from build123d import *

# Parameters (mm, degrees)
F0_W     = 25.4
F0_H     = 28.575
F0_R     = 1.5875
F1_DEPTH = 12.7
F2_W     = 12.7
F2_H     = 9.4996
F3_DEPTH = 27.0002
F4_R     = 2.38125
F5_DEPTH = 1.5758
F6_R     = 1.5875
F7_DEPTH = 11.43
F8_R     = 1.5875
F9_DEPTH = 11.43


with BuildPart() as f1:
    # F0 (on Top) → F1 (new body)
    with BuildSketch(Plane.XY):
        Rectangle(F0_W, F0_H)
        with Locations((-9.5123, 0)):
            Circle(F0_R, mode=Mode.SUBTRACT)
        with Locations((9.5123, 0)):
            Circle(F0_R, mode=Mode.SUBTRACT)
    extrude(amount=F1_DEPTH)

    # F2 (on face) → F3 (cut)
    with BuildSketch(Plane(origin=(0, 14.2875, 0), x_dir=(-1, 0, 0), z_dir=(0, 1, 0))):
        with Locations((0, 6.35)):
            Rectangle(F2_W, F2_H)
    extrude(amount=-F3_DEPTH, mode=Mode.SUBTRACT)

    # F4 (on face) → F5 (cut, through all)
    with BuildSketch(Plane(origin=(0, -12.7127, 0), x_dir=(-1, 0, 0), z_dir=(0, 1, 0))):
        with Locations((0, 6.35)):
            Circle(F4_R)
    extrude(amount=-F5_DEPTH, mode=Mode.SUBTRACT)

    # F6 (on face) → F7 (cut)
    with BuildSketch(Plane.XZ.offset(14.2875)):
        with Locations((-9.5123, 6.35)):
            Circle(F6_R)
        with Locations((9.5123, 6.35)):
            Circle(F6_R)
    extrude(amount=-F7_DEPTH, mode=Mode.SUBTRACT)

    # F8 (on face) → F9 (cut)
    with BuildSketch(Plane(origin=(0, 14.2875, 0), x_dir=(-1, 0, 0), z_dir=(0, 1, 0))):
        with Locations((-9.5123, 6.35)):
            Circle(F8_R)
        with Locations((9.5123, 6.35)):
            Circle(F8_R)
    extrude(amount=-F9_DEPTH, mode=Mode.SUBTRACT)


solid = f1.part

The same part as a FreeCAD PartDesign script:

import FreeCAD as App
import Part
import Sketcher

V = App.Vector
Q = App.Units.Quantity


def add_polygon(sketch, points):
    """Adds a closed chain of lines whose ends are joined by coincident constraints."""
    first, n = sketch.GeometryCount, len(points)
    for a, b in zip(points, points[1:] + points[:1]):
        sketch.addGeometry(Part.LineSegment(App.Vector(*a, 0), App.Vector(*b, 0)), False)
    for i in range(n):
        sketch.addConstraint(Sketcher.Constraint("Coincident", first + i, 2, first + (i + 1) % n, 1))

doc = App.newDocument("Part")
body = doc.addObject("PartDesign::Body", "Body")

sketch1 = body.newObject("Sketcher::SketchObject", "Sketch")
sketch1.AttachmentSupport = (doc.getObject("XY_Plane"), [""])
sketch1.MapMode = "FlatFace"
add_polygon(sketch1, [(-12.7, 14.3), (-12.7, -14.3), (12.7, -14.3), (12.7, 14.3)])
sketch1.addGeometry(Part.Circle(V(-9.5, 0, 0), V(0, 0, 1), 1.6), False)
sketch1.addGeometry(Part.Circle(V(9.5, 0, 0), V(0, 0, 1), 1.6), False)
sketch1.addConstraint([
    Sketcher.Constraint("Vertical", 0),
    Sketcher.Constraint("Horizontal", 1),
    Sketcher.Constraint("Vertical", 2),
    Sketcher.Constraint("Horizontal", 3),
    Sketcher.Constraint("Equal", 4, 5),
    Sketcher.Constraint("Symmetric", 4, 3, 5, 3, -1, 1),
    Sketcher.Constraint("Symmetric", 0, 2, 2, 2, -1, 1),
    Sketcher.Constraint("PointOnObject", 4, 3, -1),
    Sketcher.Constraint("DistanceX", 1, 1, 1, 2, Q("1 in")),
    Sketcher.Constraint("Diameter", 4, Q("0.125 in")),
    Sketcher.Constraint("DistanceY", 0, 2, 0, 1, Q("1.125 in")),
    Sketcher.Constraint("DistanceX", 4, 3, 5, 3, Q("0.749 in")),
])
pad1 = body.newObject("PartDesign::Pad", "Pad")
pad1.Profile = sketch1
pad1.Length = Q("0.5 in")

sketch2 = body.newObject("Sketcher::SketchObject", "Sketch001")
sketch2.AttachmentSupport = (doc.getObject("XZ_Plane"), [""])
sketch2.MapMode = "FlatFace"
sketch2.AttachmentOffset = App.Placement(V(0, 0, -0.5625 * 25.4), App.Rotation())
add_polygon(sketch2, [(6, 11), (6, 2), (-6, 2), (-6, 11)])
sketch2.addConstraint([
    Sketcher.Constraint("Vertical", 0),
    Sketcher.Constraint("Horizontal", 1),
    Sketcher.Constraint("Vertical", 2),
    Sketcher.Constraint("Horizontal", 3),
    Sketcher.Constraint("DistanceX", 1, 2, 1, 1, Q("0.5 in")),
    Sketcher.Constraint("DistanceY", 0, 2, 0, 1, Q("0.374 in")),
    Sketcher.Constraint("DistanceX", -1, 1, 0, 2, Q("0.25 in")),
    Sketcher.Constraint("DistanceY", -1, 1, 0, 2, Q("0.063 in")),
])
pocket1 = body.newObject("PartDesign::Pocket", "Pocket")
pocket1.Profile = sketch2
pocket1.Length = Q("1.063 in")
pocket1.Reversed = True

sketch3 = body.newObject("Sketcher::SketchObject", "Sketch002")
sketch3.AttachmentSupport = (doc.getObject("XZ_Plane"), [""])
sketch3.MapMode = "FlatFace"
sketch3.AttachmentOffset = App.Placement(V(0, 0, 0.5005 * 25.4), App.Rotation())
sketch3.addGeometry(Part.Circle(V(0, 6.3, 0), V(0, 0, 1), 2.4), False)
sketch3.addConstraint([
    Sketcher.Constraint("PointOnObject", 0, 3, -2),
    Sketcher.Constraint("Diameter", 0, Q("0.1875 in")),
    Sketcher.Constraint("DistanceY", -1, 1, 0, 3, Q("0.25 in")),
])
pocket2 = body.newObject("PartDesign::Pocket", "Pocket001")
pocket2.Profile = sketch3
pocket2.Type = "ThroughAll"
pocket2.Reversed = True

sketch4 = body.newObject("Sketcher::SketchObject", "Sketch003")
sketch4.AttachmentSupport = (doc.getObject("XZ_Plane"), [""])
sketch4.MapMode = "FlatFace"
sketch4.AttachmentOffset = App.Placement(V(0, 0, 0.5625 * 25.4), App.Rotation())
sketch4.addGeometry([
    Part.Circle(V(-9.5, 6.3, 0), V(0, 0, 1), 1.6),
    Part.Circle(V(9.5, 6.3, 0), V(0, 0, 1), 1.6),
], False)
sketch4.addConstraint([
    Sketcher.Constraint("Equal", 0, 1),
    Sketcher.Constraint("Symmetric", 0, 3, 1, 3, -2),
    Sketcher.Constraint("Diameter", 0, Q("0.125 in")),
    Sketcher.Constraint("DistanceY", -1, 1, 0, 3, Q("0.25 in")),
    Sketcher.Constraint("DistanceX", 0, 3, 1, 3, Q("0.749 in")),
])
pocket3 = body.newObject("PartDesign::Pocket", "Pocket002")
pocket3.Profile = sketch4
pocket3.Length = Q("0.45 in")

sketch5 = body.newObject("Sketcher::SketchObject", "Sketch004")
sketch5.AttachmentSupport = (doc.getObject("XZ_Plane"), [""])
sketch5.MapMode = "FlatFace"
sketch5.AttachmentOffset = App.Placement(V(0, 0, -0.5625 * 25.4), App.Rotation())
sketch5.addGeometry([
    Part.Circle(V(9.5, 6.3, 0), V(0, 0, 1), 1.6),
    Part.Circle(V(-9.5, 6.3, 0), V(0, 0, 1), 1.6),
], False)
sketch5.addConstraint([
    Sketcher.Constraint("Equal", 0, 1),
    Sketcher.Constraint("Symmetric", 0, 3, 1, 3, -2),
    Sketcher.Constraint("Diameter", 0, Q("0.125 in")),
    Sketcher.Constraint("DistanceY", -1, 1, 0, 3, Q("0.25 in")),
    Sketcher.Constraint("DistanceX", 1, 3, 0, 3, Q("0.749 in")),
])
pocket4 = body.newObject("PartDesign::Pocket", "Pocket003")
pocket4.Profile = sketch5
pocket4.Length = Q("0.45 in")
pocket4.Reversed = True

doc.recompute()
